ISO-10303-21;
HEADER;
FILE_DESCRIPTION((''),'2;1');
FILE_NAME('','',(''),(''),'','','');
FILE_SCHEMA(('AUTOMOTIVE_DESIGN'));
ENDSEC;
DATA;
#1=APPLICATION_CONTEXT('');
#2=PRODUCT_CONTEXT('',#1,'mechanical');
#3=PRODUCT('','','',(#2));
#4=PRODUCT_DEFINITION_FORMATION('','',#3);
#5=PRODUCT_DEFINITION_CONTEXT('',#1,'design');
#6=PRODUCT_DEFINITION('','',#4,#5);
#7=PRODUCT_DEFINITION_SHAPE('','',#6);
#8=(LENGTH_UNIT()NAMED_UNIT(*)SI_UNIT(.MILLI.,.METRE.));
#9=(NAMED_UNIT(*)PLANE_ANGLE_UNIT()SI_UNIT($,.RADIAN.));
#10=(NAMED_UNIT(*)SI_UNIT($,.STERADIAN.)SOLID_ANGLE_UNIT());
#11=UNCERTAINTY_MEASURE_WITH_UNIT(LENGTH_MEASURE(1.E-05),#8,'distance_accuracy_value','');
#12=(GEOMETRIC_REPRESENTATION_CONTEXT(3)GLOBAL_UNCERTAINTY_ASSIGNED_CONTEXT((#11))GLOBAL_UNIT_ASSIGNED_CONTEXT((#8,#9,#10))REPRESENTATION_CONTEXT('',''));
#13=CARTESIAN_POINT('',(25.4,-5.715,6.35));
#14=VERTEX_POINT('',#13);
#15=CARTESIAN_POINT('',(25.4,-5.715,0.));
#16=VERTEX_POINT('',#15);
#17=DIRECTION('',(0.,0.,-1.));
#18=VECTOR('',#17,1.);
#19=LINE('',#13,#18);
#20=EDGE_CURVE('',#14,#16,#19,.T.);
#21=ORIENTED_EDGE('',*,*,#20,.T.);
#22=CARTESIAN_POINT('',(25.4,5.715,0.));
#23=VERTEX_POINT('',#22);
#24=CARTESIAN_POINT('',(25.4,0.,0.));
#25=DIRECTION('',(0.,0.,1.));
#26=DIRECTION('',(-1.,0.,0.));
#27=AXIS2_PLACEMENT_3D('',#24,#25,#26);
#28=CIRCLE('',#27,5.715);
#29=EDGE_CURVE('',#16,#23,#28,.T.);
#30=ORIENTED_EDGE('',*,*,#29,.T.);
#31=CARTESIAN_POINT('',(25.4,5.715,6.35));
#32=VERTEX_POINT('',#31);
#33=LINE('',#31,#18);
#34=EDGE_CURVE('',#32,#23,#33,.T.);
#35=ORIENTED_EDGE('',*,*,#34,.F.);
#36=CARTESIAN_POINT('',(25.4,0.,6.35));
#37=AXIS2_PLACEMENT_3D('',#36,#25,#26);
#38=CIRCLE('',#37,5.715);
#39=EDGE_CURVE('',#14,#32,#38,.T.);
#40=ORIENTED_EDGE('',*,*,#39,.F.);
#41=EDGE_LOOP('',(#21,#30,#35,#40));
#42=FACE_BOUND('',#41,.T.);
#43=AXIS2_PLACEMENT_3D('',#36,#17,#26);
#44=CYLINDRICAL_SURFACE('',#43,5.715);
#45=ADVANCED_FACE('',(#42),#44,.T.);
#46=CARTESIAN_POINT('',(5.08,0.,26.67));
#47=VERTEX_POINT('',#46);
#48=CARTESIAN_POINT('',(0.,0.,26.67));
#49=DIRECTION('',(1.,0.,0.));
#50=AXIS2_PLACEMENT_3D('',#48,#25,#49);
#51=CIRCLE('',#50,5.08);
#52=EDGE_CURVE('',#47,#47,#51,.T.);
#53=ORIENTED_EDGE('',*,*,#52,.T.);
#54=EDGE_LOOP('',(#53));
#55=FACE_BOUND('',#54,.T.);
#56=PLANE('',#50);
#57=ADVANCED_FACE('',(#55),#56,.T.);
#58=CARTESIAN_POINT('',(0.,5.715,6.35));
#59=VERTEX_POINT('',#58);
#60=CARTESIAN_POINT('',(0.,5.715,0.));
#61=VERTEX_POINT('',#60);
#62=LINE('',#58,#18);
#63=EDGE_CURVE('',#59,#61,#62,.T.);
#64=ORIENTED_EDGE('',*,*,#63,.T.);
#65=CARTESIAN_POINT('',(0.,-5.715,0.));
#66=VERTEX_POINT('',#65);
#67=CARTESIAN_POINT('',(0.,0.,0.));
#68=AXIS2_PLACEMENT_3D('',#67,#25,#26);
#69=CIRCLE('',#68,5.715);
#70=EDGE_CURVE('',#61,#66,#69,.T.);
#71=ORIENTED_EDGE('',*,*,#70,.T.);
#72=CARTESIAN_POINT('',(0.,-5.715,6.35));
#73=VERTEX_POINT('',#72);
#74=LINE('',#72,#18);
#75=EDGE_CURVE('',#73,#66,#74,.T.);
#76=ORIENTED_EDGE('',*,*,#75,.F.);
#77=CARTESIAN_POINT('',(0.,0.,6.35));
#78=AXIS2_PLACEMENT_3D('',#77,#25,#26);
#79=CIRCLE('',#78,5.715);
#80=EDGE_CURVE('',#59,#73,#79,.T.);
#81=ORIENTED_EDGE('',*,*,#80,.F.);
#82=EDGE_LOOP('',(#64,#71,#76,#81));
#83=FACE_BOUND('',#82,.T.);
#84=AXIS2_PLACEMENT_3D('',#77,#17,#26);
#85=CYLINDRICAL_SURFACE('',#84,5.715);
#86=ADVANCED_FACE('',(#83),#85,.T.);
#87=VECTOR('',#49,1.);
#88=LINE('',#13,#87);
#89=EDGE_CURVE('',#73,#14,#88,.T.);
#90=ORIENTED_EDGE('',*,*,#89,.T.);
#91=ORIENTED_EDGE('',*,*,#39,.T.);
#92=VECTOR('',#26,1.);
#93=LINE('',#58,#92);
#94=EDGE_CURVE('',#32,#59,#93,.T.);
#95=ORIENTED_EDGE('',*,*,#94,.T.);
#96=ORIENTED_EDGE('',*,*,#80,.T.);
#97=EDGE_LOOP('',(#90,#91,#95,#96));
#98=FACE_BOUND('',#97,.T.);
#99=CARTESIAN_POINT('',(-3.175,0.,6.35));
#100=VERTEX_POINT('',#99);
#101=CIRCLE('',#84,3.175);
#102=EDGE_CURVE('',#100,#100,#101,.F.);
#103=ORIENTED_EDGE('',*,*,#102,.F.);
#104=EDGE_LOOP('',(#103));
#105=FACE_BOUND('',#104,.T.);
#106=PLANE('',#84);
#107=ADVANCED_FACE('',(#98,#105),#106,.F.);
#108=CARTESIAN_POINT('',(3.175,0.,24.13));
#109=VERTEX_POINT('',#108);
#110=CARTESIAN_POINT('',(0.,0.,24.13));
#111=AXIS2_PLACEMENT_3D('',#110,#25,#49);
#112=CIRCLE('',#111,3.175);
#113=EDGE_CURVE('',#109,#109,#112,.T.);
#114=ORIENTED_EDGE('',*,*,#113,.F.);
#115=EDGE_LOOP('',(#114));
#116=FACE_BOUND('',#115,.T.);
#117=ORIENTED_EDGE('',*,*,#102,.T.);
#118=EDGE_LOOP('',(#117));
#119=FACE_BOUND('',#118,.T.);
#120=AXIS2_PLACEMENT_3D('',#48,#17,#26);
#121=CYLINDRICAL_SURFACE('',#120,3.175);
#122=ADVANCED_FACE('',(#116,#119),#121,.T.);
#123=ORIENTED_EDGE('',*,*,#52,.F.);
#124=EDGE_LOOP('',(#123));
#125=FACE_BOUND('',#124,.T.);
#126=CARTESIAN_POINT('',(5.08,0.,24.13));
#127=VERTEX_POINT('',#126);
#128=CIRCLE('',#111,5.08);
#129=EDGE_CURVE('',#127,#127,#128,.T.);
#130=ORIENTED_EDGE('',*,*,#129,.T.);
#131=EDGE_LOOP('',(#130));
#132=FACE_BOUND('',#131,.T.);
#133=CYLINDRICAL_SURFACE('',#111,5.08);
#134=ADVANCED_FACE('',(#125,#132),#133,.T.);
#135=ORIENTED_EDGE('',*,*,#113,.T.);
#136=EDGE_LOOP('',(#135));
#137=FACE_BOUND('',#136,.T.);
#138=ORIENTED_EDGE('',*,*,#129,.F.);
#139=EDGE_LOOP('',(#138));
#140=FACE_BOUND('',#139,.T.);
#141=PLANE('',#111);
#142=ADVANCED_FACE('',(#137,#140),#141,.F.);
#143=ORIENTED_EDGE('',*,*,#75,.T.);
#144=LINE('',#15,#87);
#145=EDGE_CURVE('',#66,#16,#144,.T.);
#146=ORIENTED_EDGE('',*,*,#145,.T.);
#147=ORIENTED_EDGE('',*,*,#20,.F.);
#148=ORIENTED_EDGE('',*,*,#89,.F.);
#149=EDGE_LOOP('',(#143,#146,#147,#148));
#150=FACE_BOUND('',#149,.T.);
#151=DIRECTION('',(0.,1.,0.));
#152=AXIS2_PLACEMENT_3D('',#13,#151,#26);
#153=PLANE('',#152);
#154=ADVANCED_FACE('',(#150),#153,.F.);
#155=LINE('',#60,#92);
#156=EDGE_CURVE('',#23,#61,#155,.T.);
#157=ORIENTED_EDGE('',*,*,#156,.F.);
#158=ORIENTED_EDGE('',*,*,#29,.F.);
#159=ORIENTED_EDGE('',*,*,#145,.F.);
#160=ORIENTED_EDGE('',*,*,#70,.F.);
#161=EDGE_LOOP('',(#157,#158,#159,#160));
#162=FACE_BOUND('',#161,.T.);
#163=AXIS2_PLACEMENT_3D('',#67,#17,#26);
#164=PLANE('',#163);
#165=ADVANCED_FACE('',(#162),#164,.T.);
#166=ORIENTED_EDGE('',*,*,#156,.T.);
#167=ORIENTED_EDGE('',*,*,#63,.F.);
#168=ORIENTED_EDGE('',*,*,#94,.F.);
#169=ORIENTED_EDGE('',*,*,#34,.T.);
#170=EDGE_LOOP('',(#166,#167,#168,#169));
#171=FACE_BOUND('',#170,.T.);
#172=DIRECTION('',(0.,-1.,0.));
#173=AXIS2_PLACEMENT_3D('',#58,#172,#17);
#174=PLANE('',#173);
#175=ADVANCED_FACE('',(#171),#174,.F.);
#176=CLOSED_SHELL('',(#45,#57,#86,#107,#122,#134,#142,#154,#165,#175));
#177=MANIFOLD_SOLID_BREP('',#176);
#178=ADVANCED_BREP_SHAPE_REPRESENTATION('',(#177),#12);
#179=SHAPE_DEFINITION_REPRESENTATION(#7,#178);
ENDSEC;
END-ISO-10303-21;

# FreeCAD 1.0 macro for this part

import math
import FreeCAD as App
import Part
import Sketcher
from FreeCAD import Vector
Q = App.Units.Quantity

doc = App.newDocument("Part")
params = doc.addObject("Spreadsheet::Sheet", "Params")
for row, (alias, value) in enumerate([
    ("sketch1_width", "1 in"),
    ("sketch1_radius", "0.225 in"),
    ("pad1_length", "0.25 in"),
    ("sketch2_diameter", "0.25 in"),
    ("pad2_length", "0.8 in"),
    ("sketch3_diameter", "0.4 in"),
    ("pad3_length", "0.1 in"),
], start=1):
    params.set(f"A{row}", alias)
    params.set(f"B{row}", "=" + value)
    params.setAlias(f"B{row}", alias)

body = doc.addObject("PartDesign::Body", "Body")

# Sketch on XY plane
sketch1 = doc.addObject("Sketcher::SketchObject", "Sketch")
body.addObject(sketch1)
sketch1.AttachmentSupport = (doc.XY_Plane, [""])
sketch1.MapMode = "FlatFace"
sketch1.addGeometry(Part.LineSegment(Vector(25, 6, 0), Vector(0, 6, 0)), False)
sketch1.addGeometry(Part.ArcOfCircle(Part.Circle(Vector(0, 0, 0), Vector(0, 0, 1), 6), math.radians(90), math.radians(270)), False)
sketch1.addGeometry(Part.LineSegment(Vector(0, -6, 0), Vector(25, -6, 0)), False)
sketch1.addGeometry(Part.ArcOfCircle(Part.Circle(Vector(25, 0, 0), Vector(0, 0, 1), 6), math.radians(-90), math.radians(90)), False)
sketch1.addConstraint(Sketcher.Constraint("Tangent", 0, 2, 1, 1))
sketch1.addConstraint(Sketcher.Constraint("Tangent", 1, 2, 2, 1))
sketch1.addConstraint(Sketcher.Constraint("Tangent", 2, 2, 3, 1))
sketch1.addConstraint(Sketcher.Constraint("Tangent", 3, 2, 0, 1))
sketch1.addConstraint(Sketcher.Constraint("Horizontal", 0))
sketch1.addConstraint(Sketcher.Constraint("Horizontal", 2))
sketch1.addConstraint(Sketcher.Constraint("Coincident", 1, 3, -1, 1))
sketch1.addConstraint(Sketcher.Constraint("DistanceX", 0, 2, 0, 1, Q("1 in")))
sketch1.addConstraint(Sketcher.Constraint("Radius", 1, Q("0.225 in")))
sketch1.setExpression("Constraints[7]", "Params.sketch1_width")
sketch1.setExpression("Constraints[8]", "Params.sketch1_radius")
pad1 = doc.addObject("PartDesign::Pad", "Pad")
body.addObject(pad1)
pad1.Profile = sketch1
pad1.setExpression("Length", "Params.pad1_length")

# Sketch on XY plane
sketch2 = doc.addObject("Sketcher::SketchObject", "Sketch001")
body.addObject(sketch2)
sketch2.AttachmentSupport = (doc.XY_Plane, [""])
sketch2.MapMode = "FlatFace"
sketch2.AttachmentOffset = App.Placement(Vector(0, 0, 0.25 * 25.4), App.Rotation())
sketch2.addGeometry(Part.Circle(Vector(0, 0, 0), Vector(0, 0, 1), 3.2), False)
sketch2.addConstraint(Sketcher.Constraint("Coincident", 0, 3, -1, 1))
sketch2.addConstraint(Sketcher.Constraint("Diameter", 0, Q("0.25 in")))
sketch2.setExpression("Constraints[1]", "Params.sketch2_diameter")
pad2 = doc.addObject("PartDesign::Pad", "Pad001")
body.addObject(pad2)
pad2.Profile = sketch2
pad2.setExpression("Length", "Params.pad2_length")

# Sketch on XY plane
sketch3 = doc.addObject("Sketcher::SketchObject", "Sketch002")
body.addObject(sketch3)
sketch3.AttachmentSupport = (doc.XY_Plane, [""])
sketch3.MapMode = "FlatFace"
sketch3.AttachmentOffset = App.Placement(Vector(0, 0, 1.05 * 25.4), App.Rotation())
sketch3.addGeometry(Part.Circle(Vector(0, 0, 0), Vector(0, 0, 1), 5), False)
sketch3.addConstraint(Sketcher.Constraint("Coincident", 0, 3, -1, 1))
sketch3.addConstraint(Sketcher.Constraint("Diameter", 0, Q("0.4 in")))
sketch3.setExpression("Constraints[1]", "Params.sketch3_diameter")
pad3 = doc.addObject("PartDesign::Pad", "Pad002")
body.addObject(pad3)
pad3.Profile = sketch3
pad3.setExpression("Length", "Params.pad3_length")
pad3.Reversed = True

doc.recompute()
